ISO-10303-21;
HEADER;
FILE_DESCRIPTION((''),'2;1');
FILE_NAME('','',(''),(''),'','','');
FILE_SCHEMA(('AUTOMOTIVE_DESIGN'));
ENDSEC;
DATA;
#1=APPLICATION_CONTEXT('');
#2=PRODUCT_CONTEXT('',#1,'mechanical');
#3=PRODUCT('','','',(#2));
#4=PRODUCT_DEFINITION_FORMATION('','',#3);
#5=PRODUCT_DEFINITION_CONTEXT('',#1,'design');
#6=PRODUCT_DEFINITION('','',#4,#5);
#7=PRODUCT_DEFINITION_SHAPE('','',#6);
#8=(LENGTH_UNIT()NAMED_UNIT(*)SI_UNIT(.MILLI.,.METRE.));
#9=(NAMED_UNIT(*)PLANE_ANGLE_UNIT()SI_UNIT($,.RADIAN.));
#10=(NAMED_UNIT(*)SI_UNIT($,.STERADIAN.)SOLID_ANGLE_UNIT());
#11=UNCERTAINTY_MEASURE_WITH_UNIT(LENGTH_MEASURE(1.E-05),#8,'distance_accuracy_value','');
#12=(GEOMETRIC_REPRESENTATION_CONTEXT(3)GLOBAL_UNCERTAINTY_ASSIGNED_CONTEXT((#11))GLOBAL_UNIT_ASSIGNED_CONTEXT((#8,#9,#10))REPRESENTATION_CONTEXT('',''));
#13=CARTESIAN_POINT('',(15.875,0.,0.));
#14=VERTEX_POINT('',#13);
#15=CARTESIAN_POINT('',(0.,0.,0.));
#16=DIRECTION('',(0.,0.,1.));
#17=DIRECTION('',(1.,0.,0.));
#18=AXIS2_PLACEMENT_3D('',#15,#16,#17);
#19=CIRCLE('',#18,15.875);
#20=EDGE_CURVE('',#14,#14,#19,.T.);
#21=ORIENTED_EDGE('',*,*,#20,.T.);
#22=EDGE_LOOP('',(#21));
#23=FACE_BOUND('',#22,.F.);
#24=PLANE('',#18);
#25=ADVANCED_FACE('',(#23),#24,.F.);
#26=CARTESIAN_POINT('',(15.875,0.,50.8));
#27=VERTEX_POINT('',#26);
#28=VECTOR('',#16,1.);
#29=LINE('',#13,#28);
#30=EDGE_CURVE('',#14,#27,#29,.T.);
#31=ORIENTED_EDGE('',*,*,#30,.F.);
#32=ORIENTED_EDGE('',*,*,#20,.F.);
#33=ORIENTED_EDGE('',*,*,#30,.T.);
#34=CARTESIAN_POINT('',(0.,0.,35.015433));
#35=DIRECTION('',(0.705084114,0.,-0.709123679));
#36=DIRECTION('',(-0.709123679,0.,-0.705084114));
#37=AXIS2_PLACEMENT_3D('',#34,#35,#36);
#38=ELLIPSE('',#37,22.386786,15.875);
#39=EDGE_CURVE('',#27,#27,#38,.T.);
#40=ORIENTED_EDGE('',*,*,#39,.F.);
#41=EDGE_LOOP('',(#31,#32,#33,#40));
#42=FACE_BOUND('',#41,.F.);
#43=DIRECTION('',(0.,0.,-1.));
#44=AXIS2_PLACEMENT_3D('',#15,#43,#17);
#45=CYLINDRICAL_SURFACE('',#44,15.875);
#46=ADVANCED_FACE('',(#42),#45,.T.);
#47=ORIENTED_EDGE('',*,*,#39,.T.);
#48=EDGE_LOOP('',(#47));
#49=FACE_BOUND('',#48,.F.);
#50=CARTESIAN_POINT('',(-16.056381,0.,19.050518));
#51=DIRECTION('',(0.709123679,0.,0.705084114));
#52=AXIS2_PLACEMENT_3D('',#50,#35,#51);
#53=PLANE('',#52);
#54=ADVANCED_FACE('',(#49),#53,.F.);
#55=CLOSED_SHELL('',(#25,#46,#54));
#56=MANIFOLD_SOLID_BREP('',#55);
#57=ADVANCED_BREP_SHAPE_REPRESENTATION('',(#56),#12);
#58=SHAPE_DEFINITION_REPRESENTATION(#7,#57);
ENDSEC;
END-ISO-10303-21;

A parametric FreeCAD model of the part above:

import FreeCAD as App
import Part
import Sketcher
Q = App.Units.Quantity

doc = App.newDocument("Part")
body = doc.addObject("PartDesign::Body", "Body")

# Sketch on XY plane
sketch1 = body.newObject("Sketcher::SketchObject", "Sketch")
sketch1.AttachmentSupport = (doc.getObject("XY_Plane"), [""])
sketch1.MapMode = "FlatFace"
sketch1.addGeometry(Part.Circle(App.Vector(0, 0, 0), App.Vector(0, 0, 1), 16), False)
sketch1.addConstraint([
    Sketcher.Constraint("Coincident", 0, 3, -1, 1),
    Sketcher.Constraint("Diameter", 0, Q("1.25 in")),
])
pad1 = body.newObject("PartDesign::Pad", "Pad")
pad1.Profile = sketch1
pad1.Length = Q("2 in")

# Sketch on XZ plane
sketch2 = body.newObject("Sketcher::SketchObject", "Sketch001")
sketch2.AttachmentSupport = (doc.getObject("XZ_Plane"), [""])
sketch2.MapMode = "FlatFace"
sketch2.addGeometry([
    Part.LineSegment(App.Vector(16, 51, 0), App.Vector(-16, 51, 0)),
    Part.LineSegment(App.Vector(-16, 51, 0), App.Vector(-16, 19, 0)),
    Part.LineSegment(App.Vector(-16, 19, 0), App.Vector(16, 51, 0)),
], False)
sketch2.addConstraint([
    Sketcher.Constraint("Coincident", 0, 2, 1, 1),
    Sketcher.Constraint("Coincident", 1, 2, 2, 1),
    Sketcher.Constraint("Coincident", 2, 2, 0, 1),
    Sketcher.Constraint("Horizontal", 0),
    Sketcher.Constraint("DistanceY", -1, 1, 0, 2, Q("2 in")),
    Sketcher.Constraint("DistanceX", 0, 2, 0, 1, Q("1.25 in")),
    Sketcher.Constraint("Distance", 1, Q("1.25 in")),
    Sketcher.Constraint("DistanceX", 0, 2, -1, 1, Q("0.625 in")),
    Sketcher.Constraint("DistanceX", 1, 2, -1, 1, 16.056381),
])
pocket1 = body.newObject("PartDesign::Pocket", "Pocket")
pocket1.Profile = sketch2
pocket1.Length = Q("2 in")
pocket1.Midplane = True

doc.recompute()
